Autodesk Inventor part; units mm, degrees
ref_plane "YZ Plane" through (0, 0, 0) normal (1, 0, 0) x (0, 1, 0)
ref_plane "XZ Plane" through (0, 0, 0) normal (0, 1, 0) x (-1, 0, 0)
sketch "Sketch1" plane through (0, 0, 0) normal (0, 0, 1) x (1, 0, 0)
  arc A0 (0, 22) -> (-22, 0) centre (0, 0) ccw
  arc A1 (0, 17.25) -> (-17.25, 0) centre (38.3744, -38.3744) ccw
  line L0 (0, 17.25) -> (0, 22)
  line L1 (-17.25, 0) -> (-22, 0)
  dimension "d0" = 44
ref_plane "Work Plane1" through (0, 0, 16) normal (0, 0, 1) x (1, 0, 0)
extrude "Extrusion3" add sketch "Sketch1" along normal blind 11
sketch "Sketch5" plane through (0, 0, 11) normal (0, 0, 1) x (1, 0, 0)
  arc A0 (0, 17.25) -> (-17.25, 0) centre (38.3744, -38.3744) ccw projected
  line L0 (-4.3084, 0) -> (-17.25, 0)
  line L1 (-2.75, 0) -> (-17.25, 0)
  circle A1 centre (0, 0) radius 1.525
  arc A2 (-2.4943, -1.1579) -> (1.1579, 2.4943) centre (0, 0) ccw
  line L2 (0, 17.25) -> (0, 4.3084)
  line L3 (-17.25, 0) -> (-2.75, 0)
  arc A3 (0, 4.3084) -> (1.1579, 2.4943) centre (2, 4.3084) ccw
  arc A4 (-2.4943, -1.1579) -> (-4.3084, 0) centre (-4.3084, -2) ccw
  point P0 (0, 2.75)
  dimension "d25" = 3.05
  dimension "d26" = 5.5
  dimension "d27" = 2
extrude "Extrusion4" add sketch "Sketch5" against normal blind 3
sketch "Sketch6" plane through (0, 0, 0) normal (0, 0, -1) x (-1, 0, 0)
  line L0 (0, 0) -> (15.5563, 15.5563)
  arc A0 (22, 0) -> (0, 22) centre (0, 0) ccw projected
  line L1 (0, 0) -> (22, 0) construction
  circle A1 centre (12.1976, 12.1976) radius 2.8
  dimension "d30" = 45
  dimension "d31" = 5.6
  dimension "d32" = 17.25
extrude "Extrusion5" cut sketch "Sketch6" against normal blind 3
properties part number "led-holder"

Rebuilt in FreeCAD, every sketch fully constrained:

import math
import FreeCAD as App
import Part
import Sketcher
Q = App.Units.Quantity

doc = App.newDocument("Part")
params = doc.addObject("Spreadsheet::Sheet", "Params")
for row, (alias, value) in enumerate([
    ("sketch1_radius", "22 mm"),
    ("sketch1_width", "4.75 mm"),
    ("pad1_length", "11 mm"),
    ("sketch2_radius", "2 mm"),
    ("sketch2_diameter", "3.05 mm"),
    ("sketch2_radius2", "2.75 mm"),
    ("pad2_length", "3 mm"),
    ("sketch3_diameter", "5.6 mm"),
    ("pocket1_length", "3 mm"),
], start=1):
    params.set(f"A{row}", alias)
    params.set(f"B{row}", "=" + value)
    params.setAlias(f"B{row}", alias)

body = doc.addObject("PartDesign::Body", "Body")

# Sketch on XY plane
sketch1 = body.newObject("Sketcher::SketchObject", "Sketch")
sketch1.AttachmentSupport = (doc.getObject("XY_Plane"), [""])
sketch1.MapMode = "FlatFace"
sketch1.addGeometry([
    Part.LineSegment(App.Vector(0, 17.2, 0), App.Vector(0, 22, 0)),
    Part.ArcOfCircle(Part.Circle(App.Vector(0, 0, 0), App.Vector(0, 0, 1), 22), math.radians(90), math.radians(180)),
    Part.LineSegment(App.Vector(-22, 0, 0), App.Vector(-17.2, 0, 0)),
    Part.ArcOfCircle(Part.Circle(App.Vector(38.4, -38.4, 0), App.Vector(0, 0, 1), 67.6), math.radians(125), math.radians(145)),
], False)
sketch1.addConstraint([
    Sketcher.Constraint("Coincident", 0, 2, 1, 1),
    Sketcher.Constraint("Coincident", 1, 2, 2, 1),
    Sketcher.Constraint("Coincident", 2, 2, 3, 2),
    Sketcher.Constraint("Coincident", 3, 1, 0, 1),
    Sketcher.Constraint("Vertical", 0),
    Sketcher.Constraint("Horizontal", 2),
    Sketcher.Constraint("Coincident", 1, 3, -1, 1),
    Sketcher.Constraint("PointOnObject", 0, 2, -2),
    Sketcher.Constraint("PointOnObject", 1, 2, -1),
    Sketcher.Constraint("Equal", 2, 0),
    Sketcher.Constraint("Radius", 1, Q("22 mm")),
    Sketcher.Constraint("DistanceX", 2, 1, 2, 2, Q("4.75 mm")),
    Sketcher.Constraint("Radius", 3, Q("67.5771 mm")),
])
sketch1.setExpression("Constraints[10]", "Params.sketch1_radius")
sketch1.setExpression("Constraints[11]", "Params.sketch1_width")
pad1 = body.newObject("PartDesign::Pad", "Pad")
pad1.Profile = sketch1
pad1.setExpression("Length", "Params.pad1_length")

# Sketch on XY plane
sketch2 = body.newObject("Sketcher::SketchObject", "Sketch001")
sketch2.AttachmentSupport = (doc.getObject("XY_Plane"), [""])
sketch2.MapMode = "FlatFace"
sketch2.AttachmentOffset = App.Placement(App.Vector(0, 0, 11), App.Rotation())
sketch2.addGeometry([
    Part.LineSegment(App.Vector(0, 4.3, 0), App.Vector(0, 17.2, 0)),  # 0
    Part.ArcOfCircle(Part.Circle(App.Vector(38.4, -38.4, 0), App.Vector(0, 0, 1), 67.6), math.radians(125), math.radians(145)),  # 1
    Part.LineSegment(App.Vector(-17.2, 0, 0), App.Vector(-4.3, 0, 0)),  # 2
    Part.ArcOfCircle(Part.Circle(App.Vector(-4.3, -2, 0), App.Vector(0, 0, 1), 2), math.radians(25), math.radians(90)),  # 3
    Part.ArcOfCircle(Part.Circle(App.Vector(0, 0, 0), App.Vector(0, 0, 1), 2.7), math.radians(-155), math.radians(65)),  # 4
    Part.ArcOfCircle(Part.Circle(App.Vector(2, 4.3, 0), App.Vector(0, 0, 1), 2), math.radians(180), math.radians(245)),  # 5
    Part.Circle(App.Vector(0, 0, 0), App.Vector(0, 0, 1), 1.5),  # 6
], False)
sketch2.addConstraint([
    Sketcher.Constraint("Coincident", 0, 2, 1, 1),
    Sketcher.Constraint("Coincident", 1, 2, 2, 1),
    Sketcher.Constraint("Tangent", 2, 2, 3, 2),
    Sketcher.Constraint("Tangent", 3, 1, 4, 1),
    Sketcher.Constraint("Tangent", 4, 2, 5, 2),
    Sketcher.Constraint("Tangent", 5, 1, 0, 1),
    Sketcher.Constraint("Vertical", 0),
    Sketcher.Constraint("Horizontal", 2),
    Sketcher.Constraint("Coincident", 4, 3, -1, 1),
    Sketcher.Constraint("Coincident", 6, 3, -1, 1),
    Sketcher.Constraint("Equal", 3, 5),
    Sketcher.Constraint("PointOnObject", 0, 2, -2),
    Sketcher.Constraint("PointOnObject", 1, 2, -1),
    Sketcher.Constraint("Equal", 2, 0),
    Sketcher.Constraint("Radius", 3, Q("2 mm")),
    Sketcher.Constraint("Diameter", 6, Q("3.05 mm")),
    Sketcher.Constraint("Radius", 4, Q("2.75 mm")),
    Sketcher.Constraint("Radius", 1, Q("67.5771 mm")),
    Sketcher.Constraint("DistanceY", -1, 1, 0, 2, Q("17.25 mm")),
])
sketch2.setExpression("Constraints[14]", "Params.sketch2_radius")
sketch2.setExpression("Constraints[15]", "Params.sketch2_diameter")
sketch2.setExpression("Constraints[16]", "Params.sketch2_radius2")
pad2 = body.newObject("PartDesign::Pad", "Pad001")
pad2.Profile = sketch2
pad2.setExpression("Length", "Params.pad2_length")
pad2.Reversed = True

# Sketch on XY plane
sketch3 = body.newObject("Sketcher::SketchObject", "Sketch002")
sketch3.AttachmentSupport = (doc.getObject("XY_Plane"), [""])
sketch3.MapMode = "FlatFace"
sketch3.addGeometry(Part.Circle(App.Vector(-12.2, 12.2, 0), App.Vector(0, 0, 1), 2.8), False)
sketch3.addConstraint([
    Sketcher.Constraint("Diameter", 0, Q("5.6 mm")),
    Sketcher.Constraint("DistanceX", 0, 3, -1, 1, Q("12.1976 mm")),
    Sketcher.Constraint("DistanceY", -1, 1, 0, 3, Q("12.1976 mm")),
])
sketch3.setExpression("Constraints[0]", "Params.sketch3_diameter")
pocket1 = body.newObject("PartDesign::Pocket", "Pocket")
pocket1.Profile = sketch3
pocket1.setExpression("Length", "Params.pocket1_length")
pocket1.Reversed = True

doc.recompute()
